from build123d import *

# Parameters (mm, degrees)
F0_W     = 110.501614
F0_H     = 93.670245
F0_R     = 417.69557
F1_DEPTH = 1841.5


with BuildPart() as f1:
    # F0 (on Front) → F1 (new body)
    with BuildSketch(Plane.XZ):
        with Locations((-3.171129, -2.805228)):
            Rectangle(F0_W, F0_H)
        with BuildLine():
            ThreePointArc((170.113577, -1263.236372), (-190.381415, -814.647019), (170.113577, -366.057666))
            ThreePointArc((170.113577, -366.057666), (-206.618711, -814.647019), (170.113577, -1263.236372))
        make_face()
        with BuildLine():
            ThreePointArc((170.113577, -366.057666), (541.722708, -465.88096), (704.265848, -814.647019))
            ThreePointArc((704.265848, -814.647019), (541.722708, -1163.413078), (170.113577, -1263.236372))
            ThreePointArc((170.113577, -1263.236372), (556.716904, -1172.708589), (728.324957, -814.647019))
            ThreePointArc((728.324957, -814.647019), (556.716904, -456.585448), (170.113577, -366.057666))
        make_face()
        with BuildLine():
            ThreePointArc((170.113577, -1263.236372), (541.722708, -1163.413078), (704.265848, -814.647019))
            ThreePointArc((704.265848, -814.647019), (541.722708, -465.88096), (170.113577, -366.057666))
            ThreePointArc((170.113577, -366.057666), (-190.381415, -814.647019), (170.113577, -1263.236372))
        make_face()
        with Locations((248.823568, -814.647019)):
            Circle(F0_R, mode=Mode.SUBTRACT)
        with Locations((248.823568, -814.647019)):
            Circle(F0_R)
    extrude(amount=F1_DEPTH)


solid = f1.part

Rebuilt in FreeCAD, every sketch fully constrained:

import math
import FreeCAD as App
import Part
import Sketcher
from FreeCAD import Vector


def add_polygon(sketch, points):
    """Adds a closed chain of lines whose ends are joined by coincident constraints."""
    first, n = sketch.GeometryCount, len(points)
    for a, b in zip(points, points[1:] + points[:1]):
        sketch.addGeometry(Part.LineSegment(App.Vector(*a, 0), App.Vector(*b, 0)), False)
    for i in range(n):
        sketch.addConstraint(Sketcher.Constraint("Coincident", first + i, 2, first + (i + 1) % n, 1))

doc = App.newDocument("Part")
params = doc.addObject("Spreadsheet::Sheet", "Params")
for row, (alias, value) in enumerate([
    ("pad1_length", "72.5 in"),
], start=1):
    params.set(f"A{row}", alias)
    params.set(f"B{row}", "=" + value)
    params.setAlias(f"B{row}", alias)

body = doc.addObject("PartDesign::Body", "Body")
body.AllowCompound = True

# Sketch on XZ plane
sketch1 = doc.addObject("Sketcher::SketchObject", "Sketch")
body.addObject(sketch1)
sketch1.AttachmentSupport = (doc.XZ_Plane, [""])
sketch1.MapMode = "FlatFace"
add_polygon(sketch1, [(-58, 44), (-58, -50), (52, -50), (52, 44)])  # lines 0-3
sketch1.addGeometry(Part.ArcOfCircle(Part.Circle(Vector(249, -815, 0), Vector(0, 0, 1), 455), math.radians(100), math.radians(260)), False)  # 4
sketch1.addGeometry(Part.ArcOfCircle(Part.Circle(Vector(269, -815, 0), Vector(0, 0, 1), 459), math.radians(-102), math.radians(0)), False)  # 5
sketch1.addGeometry(Part.ArcOfCircle(Part.Circle(Vector(269, -815, 0), Vector(0, 0, 1), 459), math.radians(0), math.radians(102)), False)  # 6
sketch1.addConstraint(Sketcher.Constraint("Coincident", 4, 2, 5, 1))
sketch1.addConstraint(Sketcher.Constraint("Tangent", 5, 2, 6, 1))
sketch1.addConstraint(Sketcher.Constraint("Coincident", 6, 2, 4, 1))
sketch1.addConstraint(Sketcher.Constraint("Vertical", 0))
sketch1.addConstraint(Sketcher.Constraint("Horizontal", 1))
sketch1.addConstraint(Sketcher.Constraint("Vertical", 2))
sketch1.addConstraint(Sketcher.Constraint("Horizontal", 3))
sketch1.addConstraint(Sketcher.Constraint("Equal", 5, 6))
sketch1.addConstraint(Sketcher.Constraint("Horizontal", 4, 3, 5, 3))
sketch1.addConstraint(Sketcher.Constraint("Horizontal", 6, 3, 5, 2))
sketch1.addConstraint(Sketcher.Constraint("Radius", 4, 455.44228))
sketch1.addConstraint(Sketcher.Constraint("Radius", 5, 459.353187))
sketch1.addConstraint(Sketcher.Constraint("DistanceX", 4, 3, 5, 3, 20.148201))
sketch1.addConstraint(Sketcher.Constraint("DistanceX", 1, 1, 1, 2, 110.501614))
sketch1.addConstraint(Sketcher.Constraint("DistanceY", 0, 2, 0, 1, 93.670245))
sketch1.addConstraint(Sketcher.Constraint("DistanceX", -1, 1, 4, 3, 248.823569))
sketch1.addConstraint(Sketcher.Constraint("DistanceY", 4, 3, -1, 1, 814.647019))
sketch1.addConstraint(Sketcher.Constraint("DistanceY", 0, 2, -1, 1, 49.64035))
sketch1.addConstraint(Sketcher.Constraint("DistanceX", 1, 2, 4, 3, 196.743891))
pad1 = doc.addObject("PartDesign::Pad", "Pad")
body.addObject(pad1)
pad1.Profile = sketch1
pad1.setExpression("Length", "Params.pad1_length")

doc.recompute()
